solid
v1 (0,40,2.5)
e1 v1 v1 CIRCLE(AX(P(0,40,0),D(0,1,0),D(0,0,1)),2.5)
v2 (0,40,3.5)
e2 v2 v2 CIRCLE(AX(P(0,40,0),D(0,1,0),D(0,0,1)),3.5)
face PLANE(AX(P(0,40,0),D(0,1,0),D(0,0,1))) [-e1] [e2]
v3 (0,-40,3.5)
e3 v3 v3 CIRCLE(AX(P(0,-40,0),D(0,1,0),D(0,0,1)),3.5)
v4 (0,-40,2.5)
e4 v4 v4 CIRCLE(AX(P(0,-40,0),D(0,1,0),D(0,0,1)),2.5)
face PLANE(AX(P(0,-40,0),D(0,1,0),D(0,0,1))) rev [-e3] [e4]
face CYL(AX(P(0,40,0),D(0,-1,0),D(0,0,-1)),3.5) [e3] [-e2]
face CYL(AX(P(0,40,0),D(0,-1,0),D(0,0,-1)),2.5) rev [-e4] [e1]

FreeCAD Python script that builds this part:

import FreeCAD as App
import Part
import Sketcher
from FreeCAD import Vector

doc = App.newDocument("Part")
params = doc.addObject("Spreadsheet::Sheet", "Params")
for row, (alias, value) in enumerate([
    ("sketch1_diameter", "7 mm"),
    ("sketch1_diameter2", "5 mm"),
    ("pad1_length", "80 mm"),
], start=1):
    params.set(f"A{row}", alias)
    params.set(f"B{row}", "=" + value)
    params.setAlias(f"B{row}", alias)

body = doc.addObject("PartDesign::Body", "Body")

# Sketch on XZ plane
sketch1 = body.newObject("Sketcher::SketchObject", "Sketch")
sketch1.AttachmentSupport = (doc.getObject("XZ_Plane"), [""])
sketch1.MapMode = "FlatFace"
sketch1.addGeometry(Part.Circle(Vector(0, 0, 0), Vector(0, 0, 1), 3.5), False)
sketch1.addGeometry(Part.Circle(Vector(0, 0, 0), Vector(0, 0, 1), 2.5), False)
sketch1.addConstraint(Sketcher.Constraint("Coincident", 0, 3, -1, 1))
sketch1.addConstraint(Sketcher.Constraint("Coincident", 1, 3, -1, 1))
sketch1.addConstraint(Sketcher.Constraint("Diameter", 0, 7.0))
sketch1.addConstraint(Sketcher.Constraint("Diameter", 1, 5.0))
sketch1.setExpression("Constraints[2]", "Params.sketch1_diameter")
sketch1.setExpression("Constraints[3]", "Params.sketch1_diameter2")
pad1 = body.newObject("PartDesign::Pad", "Pad")
pad1.Profile = sketch1
pad1.setExpression("Length", "Params.pad1_length")
pad1.Midplane = True

doc.recompute()
